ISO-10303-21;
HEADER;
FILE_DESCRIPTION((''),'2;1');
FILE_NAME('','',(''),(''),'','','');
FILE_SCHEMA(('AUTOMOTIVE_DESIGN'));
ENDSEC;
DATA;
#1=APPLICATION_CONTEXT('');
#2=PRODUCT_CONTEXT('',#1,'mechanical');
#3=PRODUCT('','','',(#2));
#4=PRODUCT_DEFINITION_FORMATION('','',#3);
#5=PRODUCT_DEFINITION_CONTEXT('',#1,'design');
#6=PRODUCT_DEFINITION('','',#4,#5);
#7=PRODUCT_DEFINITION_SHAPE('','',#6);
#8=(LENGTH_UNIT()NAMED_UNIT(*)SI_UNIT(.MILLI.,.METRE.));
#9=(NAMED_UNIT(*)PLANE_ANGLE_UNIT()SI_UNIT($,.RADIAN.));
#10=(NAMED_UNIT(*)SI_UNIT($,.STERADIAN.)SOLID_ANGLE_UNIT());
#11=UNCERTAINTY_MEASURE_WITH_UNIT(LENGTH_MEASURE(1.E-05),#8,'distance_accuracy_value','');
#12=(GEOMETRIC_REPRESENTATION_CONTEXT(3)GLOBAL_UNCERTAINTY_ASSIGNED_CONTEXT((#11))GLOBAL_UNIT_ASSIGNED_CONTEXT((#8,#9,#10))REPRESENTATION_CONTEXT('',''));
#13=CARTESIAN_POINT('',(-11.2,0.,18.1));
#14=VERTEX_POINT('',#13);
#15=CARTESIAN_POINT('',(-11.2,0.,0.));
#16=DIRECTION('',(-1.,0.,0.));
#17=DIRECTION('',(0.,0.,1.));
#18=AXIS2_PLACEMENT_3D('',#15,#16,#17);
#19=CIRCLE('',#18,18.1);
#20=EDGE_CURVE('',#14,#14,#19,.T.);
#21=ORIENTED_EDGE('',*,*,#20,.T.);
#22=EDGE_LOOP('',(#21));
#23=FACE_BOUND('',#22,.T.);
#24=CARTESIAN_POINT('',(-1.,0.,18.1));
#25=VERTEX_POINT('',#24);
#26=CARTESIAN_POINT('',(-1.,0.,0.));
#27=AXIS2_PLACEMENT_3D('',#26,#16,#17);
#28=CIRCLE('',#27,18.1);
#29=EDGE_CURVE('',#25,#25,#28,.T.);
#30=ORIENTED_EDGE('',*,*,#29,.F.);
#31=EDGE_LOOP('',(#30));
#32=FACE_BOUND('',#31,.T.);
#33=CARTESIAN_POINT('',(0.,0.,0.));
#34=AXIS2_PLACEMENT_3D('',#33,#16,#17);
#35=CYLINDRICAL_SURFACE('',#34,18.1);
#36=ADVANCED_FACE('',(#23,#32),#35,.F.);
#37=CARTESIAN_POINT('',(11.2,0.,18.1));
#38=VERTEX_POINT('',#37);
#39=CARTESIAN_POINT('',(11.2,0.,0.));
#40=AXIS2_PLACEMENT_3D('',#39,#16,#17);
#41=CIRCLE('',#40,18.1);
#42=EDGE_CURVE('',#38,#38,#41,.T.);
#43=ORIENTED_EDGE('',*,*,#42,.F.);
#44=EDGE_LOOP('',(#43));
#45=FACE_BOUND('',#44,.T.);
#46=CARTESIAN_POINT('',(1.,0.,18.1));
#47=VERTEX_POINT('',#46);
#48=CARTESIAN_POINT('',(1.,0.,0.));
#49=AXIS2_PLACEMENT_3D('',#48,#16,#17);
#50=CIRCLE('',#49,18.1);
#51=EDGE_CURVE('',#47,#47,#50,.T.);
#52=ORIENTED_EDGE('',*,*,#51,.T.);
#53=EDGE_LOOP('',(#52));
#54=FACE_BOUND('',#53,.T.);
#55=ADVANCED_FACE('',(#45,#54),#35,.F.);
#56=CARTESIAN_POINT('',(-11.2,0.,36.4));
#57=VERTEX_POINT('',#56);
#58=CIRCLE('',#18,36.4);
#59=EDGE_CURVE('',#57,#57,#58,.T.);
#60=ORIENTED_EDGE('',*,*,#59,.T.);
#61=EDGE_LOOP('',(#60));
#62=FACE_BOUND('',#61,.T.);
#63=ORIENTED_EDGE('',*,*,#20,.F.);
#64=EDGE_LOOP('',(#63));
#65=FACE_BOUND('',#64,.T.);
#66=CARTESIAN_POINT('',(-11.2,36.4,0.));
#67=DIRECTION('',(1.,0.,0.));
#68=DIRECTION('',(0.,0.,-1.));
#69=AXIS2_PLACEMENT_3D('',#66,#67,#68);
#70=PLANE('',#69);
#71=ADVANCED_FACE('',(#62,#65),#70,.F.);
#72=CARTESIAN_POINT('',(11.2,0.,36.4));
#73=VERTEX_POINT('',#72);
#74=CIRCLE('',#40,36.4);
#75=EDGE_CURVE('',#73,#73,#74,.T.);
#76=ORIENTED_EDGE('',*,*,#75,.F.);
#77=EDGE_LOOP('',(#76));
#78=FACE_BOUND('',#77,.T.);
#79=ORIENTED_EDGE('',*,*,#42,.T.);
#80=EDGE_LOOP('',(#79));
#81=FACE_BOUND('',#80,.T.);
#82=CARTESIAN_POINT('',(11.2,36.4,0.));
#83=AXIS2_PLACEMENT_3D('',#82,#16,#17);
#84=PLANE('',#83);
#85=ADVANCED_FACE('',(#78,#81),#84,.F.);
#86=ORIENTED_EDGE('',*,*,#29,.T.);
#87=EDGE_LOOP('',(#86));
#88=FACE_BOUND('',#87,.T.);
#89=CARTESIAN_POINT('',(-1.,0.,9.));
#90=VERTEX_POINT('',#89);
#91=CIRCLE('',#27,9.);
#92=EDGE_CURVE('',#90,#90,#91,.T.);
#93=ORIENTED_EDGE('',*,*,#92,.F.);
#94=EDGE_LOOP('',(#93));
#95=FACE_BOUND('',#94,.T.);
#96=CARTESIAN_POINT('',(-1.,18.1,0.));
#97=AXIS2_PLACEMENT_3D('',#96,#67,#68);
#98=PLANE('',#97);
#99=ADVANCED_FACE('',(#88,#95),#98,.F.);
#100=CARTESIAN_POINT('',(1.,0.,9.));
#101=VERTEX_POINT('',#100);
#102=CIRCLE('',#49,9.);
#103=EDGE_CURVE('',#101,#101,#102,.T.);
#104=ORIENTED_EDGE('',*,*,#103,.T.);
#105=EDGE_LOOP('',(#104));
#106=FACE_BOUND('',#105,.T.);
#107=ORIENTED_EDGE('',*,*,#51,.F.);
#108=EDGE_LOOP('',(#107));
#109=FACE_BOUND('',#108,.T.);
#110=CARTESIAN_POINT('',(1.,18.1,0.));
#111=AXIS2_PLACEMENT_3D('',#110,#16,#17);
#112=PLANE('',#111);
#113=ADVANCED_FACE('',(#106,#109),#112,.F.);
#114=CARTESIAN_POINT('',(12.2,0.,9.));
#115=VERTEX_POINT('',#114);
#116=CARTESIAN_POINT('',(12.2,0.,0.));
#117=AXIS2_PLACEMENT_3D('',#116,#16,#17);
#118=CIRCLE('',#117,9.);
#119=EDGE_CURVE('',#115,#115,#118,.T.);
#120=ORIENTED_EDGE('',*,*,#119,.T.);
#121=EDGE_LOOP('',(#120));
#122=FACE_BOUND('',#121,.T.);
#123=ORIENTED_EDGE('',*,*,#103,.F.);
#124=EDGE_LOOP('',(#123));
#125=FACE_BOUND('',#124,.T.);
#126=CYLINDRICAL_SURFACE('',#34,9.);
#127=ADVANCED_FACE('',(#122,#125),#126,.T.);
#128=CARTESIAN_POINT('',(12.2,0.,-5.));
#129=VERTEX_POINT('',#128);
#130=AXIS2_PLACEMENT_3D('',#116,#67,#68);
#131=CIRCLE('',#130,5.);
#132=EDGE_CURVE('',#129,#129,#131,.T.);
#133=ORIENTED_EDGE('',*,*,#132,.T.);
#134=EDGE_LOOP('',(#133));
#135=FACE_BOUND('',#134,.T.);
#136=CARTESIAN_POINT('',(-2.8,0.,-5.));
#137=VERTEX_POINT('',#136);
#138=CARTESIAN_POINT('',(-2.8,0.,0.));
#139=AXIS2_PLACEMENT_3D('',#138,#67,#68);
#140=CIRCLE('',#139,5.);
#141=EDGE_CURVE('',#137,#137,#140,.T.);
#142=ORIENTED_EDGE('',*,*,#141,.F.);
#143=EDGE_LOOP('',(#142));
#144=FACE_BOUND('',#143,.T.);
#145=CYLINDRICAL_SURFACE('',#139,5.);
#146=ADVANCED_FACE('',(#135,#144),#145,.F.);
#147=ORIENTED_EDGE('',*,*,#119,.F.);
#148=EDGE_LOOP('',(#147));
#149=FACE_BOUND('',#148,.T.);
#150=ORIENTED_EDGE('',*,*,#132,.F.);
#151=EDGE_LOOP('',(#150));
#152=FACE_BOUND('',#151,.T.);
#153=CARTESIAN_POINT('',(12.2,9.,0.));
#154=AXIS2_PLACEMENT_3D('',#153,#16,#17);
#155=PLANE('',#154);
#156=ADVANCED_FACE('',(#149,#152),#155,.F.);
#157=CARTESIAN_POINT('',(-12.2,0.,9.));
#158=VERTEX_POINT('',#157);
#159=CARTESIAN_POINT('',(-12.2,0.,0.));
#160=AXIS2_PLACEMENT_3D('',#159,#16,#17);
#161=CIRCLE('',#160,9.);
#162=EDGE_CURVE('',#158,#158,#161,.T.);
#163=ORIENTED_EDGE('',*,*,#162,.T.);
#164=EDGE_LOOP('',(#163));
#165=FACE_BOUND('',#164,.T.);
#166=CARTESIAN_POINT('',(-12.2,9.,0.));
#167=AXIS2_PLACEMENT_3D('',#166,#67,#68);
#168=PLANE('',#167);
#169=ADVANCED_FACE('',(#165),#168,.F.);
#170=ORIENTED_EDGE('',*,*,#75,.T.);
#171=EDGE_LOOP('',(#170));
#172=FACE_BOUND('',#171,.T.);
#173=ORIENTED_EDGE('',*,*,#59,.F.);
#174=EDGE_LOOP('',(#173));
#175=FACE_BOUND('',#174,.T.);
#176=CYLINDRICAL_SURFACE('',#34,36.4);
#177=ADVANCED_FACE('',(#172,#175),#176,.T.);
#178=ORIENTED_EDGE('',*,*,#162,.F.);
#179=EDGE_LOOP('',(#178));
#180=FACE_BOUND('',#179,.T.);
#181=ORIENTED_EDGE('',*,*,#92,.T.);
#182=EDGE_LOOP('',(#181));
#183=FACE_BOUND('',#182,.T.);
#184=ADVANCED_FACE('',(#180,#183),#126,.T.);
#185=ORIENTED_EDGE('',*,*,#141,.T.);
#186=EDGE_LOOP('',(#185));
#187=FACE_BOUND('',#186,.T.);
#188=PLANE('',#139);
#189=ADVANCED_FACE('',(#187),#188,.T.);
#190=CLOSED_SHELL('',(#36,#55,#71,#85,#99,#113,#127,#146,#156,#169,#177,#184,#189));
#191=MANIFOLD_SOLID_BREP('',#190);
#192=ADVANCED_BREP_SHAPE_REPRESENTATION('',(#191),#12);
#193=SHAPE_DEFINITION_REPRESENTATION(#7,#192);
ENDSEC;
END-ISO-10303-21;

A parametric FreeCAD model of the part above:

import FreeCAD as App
import Part
import Sketcher
from FreeCAD import Vector
Q = App.Units.Quantity


def add_polygon(sketch, points):
    """Adds a closed chain of lines whose ends are joined by coincident constraints."""
    first, n = sketch.GeometryCount, len(points)
    for a, b in zip(points, points[1:] + points[:1]):
        sketch.addGeometry(Part.LineSegment(App.Vector(*a, 0), App.Vector(*b, 0)), False)
    for i in range(n):
        sketch.addConstraint(Sketcher.Constraint("Coincident", first + i, 2, first + (i + 1) % n, 1))

doc = App.newDocument("Part")
body = doc.addObject("PartDesign::Body", "Body")

# Sketch on XY plane
sketch1 = body.newObject("Sketcher::SketchObject", "Sketch")
sketch1.AttachmentSupport = (doc.getObject("XY_Plane"), [""])
sketch1.MapMode = "FlatFace"
add_polygon(sketch1, [(-11, 18), (-1, 18), (-1, 9), (-12, 9), (-12, 0), (12, 0), (12, 9), (1, 9), (1, 18), (11, 18), (11, 36), (-11, 36)])  # lines 0-11
sketch1.addConstraint([
    Sketcher.Constraint("Horizontal", 0),
    Sketcher.Constraint("Vertical", 1),
    Sketcher.Constraint("Horizontal", 2),
    Sketcher.Constraint("Vertical", 3),
    Sketcher.Constraint("Horizontal", 4),
    Sketcher.Constraint("Vertical", 5),
    Sketcher.Constraint("Horizontal", 6),
    Sketcher.Constraint("Vertical", 7),
    Sketcher.Constraint("Horizontal", 8),
    Sketcher.Constraint("Vertical", 9),
    Sketcher.Constraint("Horizontal", 10),
    Sketcher.Constraint("Vertical", 11),
    Sketcher.Constraint("Symmetric", 3, 2, 4, 2, -1, 1),
    Sketcher.Constraint("Symmetric", 1, 2, 6, 2, -2),
    Sketcher.Constraint("Symmetric", 8, 2, 11, 2, -2),
    Sketcher.Constraint("DistanceY", 3, 2, 3, 1, Q("9 mm")),
    Sketcher.Constraint("DistanceX", 0, 1, 0, 2, Q("10.2 mm")),
    Sketcher.Constraint("DistanceX", 2, 2, 2, 1, Q("11.2 mm")),
    Sketcher.Constraint("DistanceX", 4, 1, 4, 2, Q("24.4 mm")),
    Sketcher.Constraint("DistanceY", 1, 2, 1, 1, Q("9.1 mm")),
    Sketcher.Constraint("DistanceY", 9, 1, 9, 2, Q("18.3 mm")),
])
revolution = body.newObject("PartDesign::Revolution", "Revolution")
revolution.Profile = sketch1
revolution.ReferenceAxis = (sketch1, ["H_Axis"])
revolution.Angle = 360

# Sketch on YZ plane
sketch2 = body.newObject("Sketcher::SketchObject", "Sketch001")
sketch2.AttachmentSupport = (doc.getObject("YZ_Plane"), [""])
sketch2.MapMode = "FlatFace"
sketch2.AttachmentOffset = App.Placement(Vector(0, 0, 12.2), App.Rotation())
sketch2.addGeometry(Part.Circle(Vector(0, 0, 0), Vector(0, 0, 1), 5), False)
sketch2.addConstraint([
    Sketcher.Constraint("Coincident", 0, 3, -1, 1),
    Sketcher.Constraint("Diameter", 0, Q("10 mm")),
])
pocket1 = body.newObject("PartDesign::Pocket", "Pocket")
pocket1.Profile = sketch2
pocket1.Length = 15

doc.recompute()
